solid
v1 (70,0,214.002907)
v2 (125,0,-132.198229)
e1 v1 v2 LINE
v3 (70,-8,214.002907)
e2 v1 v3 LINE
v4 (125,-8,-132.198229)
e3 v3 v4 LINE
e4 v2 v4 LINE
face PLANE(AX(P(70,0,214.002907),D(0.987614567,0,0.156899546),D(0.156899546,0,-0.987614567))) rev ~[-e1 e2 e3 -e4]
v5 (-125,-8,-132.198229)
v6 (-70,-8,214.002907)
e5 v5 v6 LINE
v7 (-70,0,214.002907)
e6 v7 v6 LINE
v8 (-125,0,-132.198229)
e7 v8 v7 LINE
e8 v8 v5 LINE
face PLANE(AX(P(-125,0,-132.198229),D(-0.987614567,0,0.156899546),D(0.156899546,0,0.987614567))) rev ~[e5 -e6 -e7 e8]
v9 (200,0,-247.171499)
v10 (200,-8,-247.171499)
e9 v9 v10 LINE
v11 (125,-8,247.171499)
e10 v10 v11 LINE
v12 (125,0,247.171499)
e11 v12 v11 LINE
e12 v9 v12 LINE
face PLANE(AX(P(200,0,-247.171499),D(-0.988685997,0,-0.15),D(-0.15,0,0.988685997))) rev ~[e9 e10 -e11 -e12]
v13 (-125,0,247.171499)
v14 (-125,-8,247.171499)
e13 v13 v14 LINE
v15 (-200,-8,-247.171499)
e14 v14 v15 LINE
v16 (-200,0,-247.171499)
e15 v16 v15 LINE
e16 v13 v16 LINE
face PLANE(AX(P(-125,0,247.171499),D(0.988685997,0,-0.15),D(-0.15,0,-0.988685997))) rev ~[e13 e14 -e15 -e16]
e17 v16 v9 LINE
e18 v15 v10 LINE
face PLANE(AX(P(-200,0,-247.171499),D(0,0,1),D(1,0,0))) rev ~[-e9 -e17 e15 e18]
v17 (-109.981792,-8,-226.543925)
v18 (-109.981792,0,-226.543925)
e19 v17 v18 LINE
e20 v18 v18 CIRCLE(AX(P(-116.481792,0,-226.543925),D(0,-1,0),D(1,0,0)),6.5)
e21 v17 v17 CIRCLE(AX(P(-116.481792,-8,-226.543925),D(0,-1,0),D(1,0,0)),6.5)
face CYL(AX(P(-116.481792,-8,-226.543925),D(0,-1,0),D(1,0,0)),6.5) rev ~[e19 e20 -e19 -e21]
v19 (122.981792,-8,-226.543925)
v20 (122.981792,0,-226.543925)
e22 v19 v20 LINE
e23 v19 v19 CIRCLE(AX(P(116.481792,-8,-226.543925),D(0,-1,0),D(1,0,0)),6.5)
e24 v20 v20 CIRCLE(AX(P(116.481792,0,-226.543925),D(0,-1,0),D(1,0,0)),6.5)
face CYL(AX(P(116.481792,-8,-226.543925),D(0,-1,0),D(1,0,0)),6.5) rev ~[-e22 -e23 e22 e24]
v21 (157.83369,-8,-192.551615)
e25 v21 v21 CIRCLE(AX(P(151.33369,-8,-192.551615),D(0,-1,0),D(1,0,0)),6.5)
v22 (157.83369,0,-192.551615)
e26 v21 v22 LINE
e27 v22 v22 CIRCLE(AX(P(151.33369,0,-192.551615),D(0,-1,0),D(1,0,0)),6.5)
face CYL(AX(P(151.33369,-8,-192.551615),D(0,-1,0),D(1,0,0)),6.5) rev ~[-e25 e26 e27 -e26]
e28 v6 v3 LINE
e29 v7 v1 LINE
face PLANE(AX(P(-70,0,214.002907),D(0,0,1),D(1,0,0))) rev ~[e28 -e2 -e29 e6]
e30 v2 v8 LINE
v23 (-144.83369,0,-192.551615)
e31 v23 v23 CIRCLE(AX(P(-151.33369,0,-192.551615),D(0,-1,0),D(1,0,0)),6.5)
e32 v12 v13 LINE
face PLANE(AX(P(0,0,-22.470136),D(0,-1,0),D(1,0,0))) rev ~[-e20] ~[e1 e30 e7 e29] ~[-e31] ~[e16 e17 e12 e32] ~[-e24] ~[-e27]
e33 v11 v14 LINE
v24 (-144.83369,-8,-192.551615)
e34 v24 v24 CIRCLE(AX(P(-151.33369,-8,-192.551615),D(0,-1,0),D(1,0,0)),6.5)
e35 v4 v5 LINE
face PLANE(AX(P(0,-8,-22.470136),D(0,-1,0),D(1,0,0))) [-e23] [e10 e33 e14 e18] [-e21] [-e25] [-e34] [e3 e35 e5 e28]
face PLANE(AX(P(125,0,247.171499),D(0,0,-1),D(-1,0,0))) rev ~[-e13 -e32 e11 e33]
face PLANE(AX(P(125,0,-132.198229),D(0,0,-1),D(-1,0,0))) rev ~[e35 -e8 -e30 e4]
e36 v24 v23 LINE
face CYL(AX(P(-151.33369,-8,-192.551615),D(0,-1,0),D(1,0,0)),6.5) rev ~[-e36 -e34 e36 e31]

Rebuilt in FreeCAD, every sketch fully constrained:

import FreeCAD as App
import Part
import Sketcher


def add_polygon(sketch, points):
    """Adds a closed chain of lines whose ends are joined by coincident constraints."""
    first, n = sketch.GeometryCount, len(points)
    for a, b in zip(points, points[1:] + points[:1]):
        sketch.addGeometry(Part.LineSegment(App.Vector(*a, 0), App.Vector(*b, 0)), False)
    for i in range(n):
        sketch.addConstraint(Sketcher.Constraint("Coincident", first + i, 2, first + (i + 1) % n, 1))

doc = App.newDocument("Part")
params = doc.addObject("Spreadsheet::Sheet", "Params")
for row, (alias, value) in enumerate([
    ("sketch1_width", "400 mm"),
    ("sketch1_width2", "250 mm"),
    ("sketch1_width3", "140 mm"),
    ("sketch1_length", "500 mm"),
    ("pad1_length", "8 mm"),
    ("sketch2_diameter", "13 mm"),
    ("pocket1_length", "25 mm"),
], start=1):
    params.set(f"A{row}", alias)
    params.set(f"B{row}", "=" + value)
    params.setAlias(f"B{row}", alias)

body = doc.addObject("PartDesign::Body", "Body")

sketch1 = body.newObject("Sketcher::SketchObject", "Sketch")
sketch1.AttachmentSupport = (doc.getObject("XZ_Plane"), [""])
sketch1.MapMode = "FlatFace"
add_polygon(sketch1, [(-125, 247), (-200, -247), (200, -247), (125, 247)])
add_polygon(sketch1, [(125, -132), (-125, -132), (-70, 214), (70, 214)])
sketch1.addConstraint([
    Sketcher.Constraint("Horizontal", 1),
    Sketcher.Constraint("Horizontal", 3),
    Sketcher.Constraint("Horizontal", 4),
    Sketcher.Constraint("Horizontal", 6),
    Sketcher.Constraint("Vertical", 3, 2, 4, 2),
    Sketcher.Constraint("Vertical", 2, 2, 7, 2),
    Sketcher.Constraint("Equal", 0, 2),
    Sketcher.Constraint("Equal", 5, 7),
    Sketcher.Constraint("DistanceX", 1, 1, 1, 2, 400.0),
    Sketcher.Constraint("DistanceX", 3, 2, 3, 1, 250.0),
    Sketcher.Constraint("DistanceX", 6, 1, 6, 2, 140.0),
    Sketcher.Constraint("Distance", 0, 500.0),
    Sketcher.Constraint("DistanceX", 0, 2, -1, 1, 200.0),
    Sketcher.Constraint("DistanceY", 0, 2, -1, 1, 247.171499),
    Sketcher.Constraint("Distance", 5, 350.54276),
    Sketcher.Constraint("DistanceY", 4, 2, -1, 1, 132.198229),
])
sketch1.setExpression("Constraints[16]", "Params.sketch1_width")
sketch1.setExpression("Constraints[17]", "Params.sketch1_width2")
sketch1.setExpression("Constraints[18]", "Params.sketch1_width3")
sketch1.setExpression("Constraints[19]", "Params.sketch1_length")
pad1 = body.newObject("PartDesign::Pad", "Pad")
pad1.Profile = sketch1
pad1.setExpression("Length", "Params.pad1_length")

sketch2 = body.newObject("Sketcher::SketchObject", "Sketch001")
sketch2.AttachmentSupport = (doc.getObject("XZ_Plane"), [""])
sketch2.MapMode = "FlatFace"
sketch2.AttachmentOffset = App.Placement(App.Vector(0, 0, 8), App.Rotation())
sketch2.addGeometry([
    Part.Circle(App.Vector(-116, -227, 0), App.Vector(0, 0, 1), 6),
    Part.Circle(App.Vector(-151, -193, 0), App.Vector(0, 0, 1), 6),
    Part.Circle(App.Vector(151, -193, 0), App.Vector(0, 0, 1), 6),
    Part.Circle(App.Vector(116, -227, 0), App.Vector(0, 0, 1), 6),
], False)
sketch2.addConstraint([
    Sketcher.Constraint("Equal", 0, 1),
    Sketcher.Constraint("Equal", 1, 2),
    Sketcher.Constraint("Equal", 2, 3),
    Sketcher.Constraint("Symmetric", 1, 3, 2, 3, -2),
    Sketcher.Constraint("Symmetric", 0, 3, 3, 3, -2),
    Sketcher.Constraint("Diameter", 0, 13.0),
    Sketcher.Constraint("DistanceX", 0, 3, -1, 1, 116.481792),
    Sketcher.Constraint("DistanceX", 1, 3, -1, 1, 151.33369),
    Sketcher.Constraint("DistanceY", 0, 3, 1, 3, 33.99231),
    Sketcher.Constraint("DistanceY", 0, 3, -1, 1, 226.543925),
])
sketch2.setExpression("Constraints[5]", "Params.sketch2_diameter")
pocket1 = body.newObject("PartDesign::Pocket", "Pocket")
pocket1.Profile = sketch2
pocket1.setExpression("Length", "Params.pocket1_length")

doc.recompute()
